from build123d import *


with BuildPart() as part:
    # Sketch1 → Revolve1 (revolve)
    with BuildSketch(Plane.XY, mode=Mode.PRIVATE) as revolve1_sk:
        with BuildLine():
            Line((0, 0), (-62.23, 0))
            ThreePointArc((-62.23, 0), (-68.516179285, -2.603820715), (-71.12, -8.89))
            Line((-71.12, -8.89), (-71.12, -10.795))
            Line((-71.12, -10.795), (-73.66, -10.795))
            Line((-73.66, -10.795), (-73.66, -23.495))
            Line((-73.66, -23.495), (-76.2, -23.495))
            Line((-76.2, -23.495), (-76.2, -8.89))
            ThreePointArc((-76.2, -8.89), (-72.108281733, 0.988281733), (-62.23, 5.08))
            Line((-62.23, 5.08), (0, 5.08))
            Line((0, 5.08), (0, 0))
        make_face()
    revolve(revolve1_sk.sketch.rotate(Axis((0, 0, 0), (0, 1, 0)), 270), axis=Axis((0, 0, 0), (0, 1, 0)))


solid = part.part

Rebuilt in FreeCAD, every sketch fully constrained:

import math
import FreeCAD as App
import Part
import Sketcher
Q = App.Units.Quantity

doc = App.newDocument("Part")
body = doc.addObject("PartDesign::Body", "Body")

sketch1 = doc.addObject("Sketcher::SketchObject", "Sketch")
body.addObject(sketch1)
sketch1.AttachmentSupport = (doc.XY_Plane, [""])
sketch1.MapMode = "FlatFace"
sketch1.addGeometry(Part.LineSegment(App.Vector(-62.2, 0, 0), App.Vector(0, 0, 0)), False)
sketch1.addGeometry(Part.LineSegment(App.Vector(0, 0, 0), App.Vector(0, 5.1, 0)), False)
sketch1.addGeometry(Part.LineSegment(App.Vector(0, 5.1, 0), App.Vector(-62.2, 5.1, 0)), False)
sketch1.addGeometry(Part.ArcOfCircle(Part.Circle(App.Vector(-62.2, -8.9, 0), App.Vector(0, 0, 1), 14), math.radians(90), math.radians(180)), False)
sketch1.addGeometry(Part.LineSegment(App.Vector(-76.2, -8.9, 0), App.Vector(-76.2, -23.5, 0)), False)
sketch1.addGeometry(Part.LineSegment(App.Vector(-76.2, -23.5, 0), App.Vector(-73.7, -23.5, 0)), False)
sketch1.addGeometry(Part.LineSegment(App.Vector(-73.7, -23.5, 0), App.Vector(-73.7, -10.8, 0)), False)
sketch1.addGeometry(Part.LineSegment(App.Vector(-73.7, -10.8, 0), App.Vector(-71.1, -10.8, 0)), False)
sketch1.addGeometry(Part.LineSegment(App.Vector(-71.1, -10.8, 0), App.Vector(-71.1, -8.9, 0)), False)
sketch1.addGeometry(Part.ArcOfCircle(Part.Circle(App.Vector(-62.2, -8.9, 0), App.Vector(0, 0, 1), 8.9), math.radians(90), math.radians(180)), False)
sketch1.addConstraint(Sketcher.Constraint("Coincident", 0, 2, 1, 1))
sketch1.addConstraint(Sketcher.Constraint("Coincident", 1, 2, 2, 1))
sketch1.addConstraint(Sketcher.Constraint("Tangent", 2, 2, 3, 1))
sketch1.addConstraint(Sketcher.Constraint("Tangent", 3, 2, 4, 1))
sketch1.addConstraint(Sketcher.Constraint("Coincident", 4, 2, 5, 1))
sketch1.addConstraint(Sketcher.Constraint("Coincident", 5, 2, 6, 1))
sketch1.addConstraint(Sketcher.Constraint("Coincident", 6, 2, 7, 1))
sketch1.addConstraint(Sketcher.Constraint("Coincident", 7, 2, 8, 1))
sketch1.addConstraint(Sketcher.Constraint("Tangent", 8, 2, 9, 2))
sketch1.addConstraint(Sketcher.Constraint("Tangent", 9, 1, 0, 1))
sketch1.addConstraint(Sketcher.Constraint("Horizontal", 0))
sketch1.addConstraint(Sketcher.Constraint("Vertical", 1))
sketch1.addConstraint(Sketcher.Constraint("Horizontal", 2))
sketch1.addConstraint(Sketcher.Constraint("Vertical", 4))
sketch1.addConstraint(Sketcher.Constraint("Horizontal", 5))
sketch1.addConstraint(Sketcher.Constraint("Vertical", 6))
sketch1.addConstraint(Sketcher.Constraint("Horizontal", 7))
sketch1.addConstraint(Sketcher.Constraint("Vertical", 8))
sketch1.addConstraint(Sketcher.Constraint("Coincident", 0, 2, -1, 1))
sketch1.addConstraint(Sketcher.Constraint("Coincident", 9, 3, 3, 3))
sketch1.addConstraint(Sketcher.Constraint("Equal", 5, 7))
sketch1.addConstraint(Sketcher.Constraint("Radius", 3, Q("0.55 in")))
sketch1.addConstraint(Sketcher.Constraint("Radius", 9, Q("0.35 in")))
sketch1.addConstraint(Sketcher.Constraint("DistanceY", 6, 1, 6, 2, Q("0.5 in")))
sketch1.addConstraint(Sketcher.Constraint("DistanceX", 3, 2, -1, 1, Q("3 in")))
sketch1.addConstraint(Sketcher.Constraint("DistanceY", 4, 2, 4, 1, Q("0.575 in")))
revolution = doc.addObject("PartDesign::Revolution", "Revolution")
body.addObject(revolution)
revolution.Profile = sketch1
revolution.ReferenceAxis = (sketch1, ["V_Axis"])
revolution.Angle = 360

doc.recompute()
